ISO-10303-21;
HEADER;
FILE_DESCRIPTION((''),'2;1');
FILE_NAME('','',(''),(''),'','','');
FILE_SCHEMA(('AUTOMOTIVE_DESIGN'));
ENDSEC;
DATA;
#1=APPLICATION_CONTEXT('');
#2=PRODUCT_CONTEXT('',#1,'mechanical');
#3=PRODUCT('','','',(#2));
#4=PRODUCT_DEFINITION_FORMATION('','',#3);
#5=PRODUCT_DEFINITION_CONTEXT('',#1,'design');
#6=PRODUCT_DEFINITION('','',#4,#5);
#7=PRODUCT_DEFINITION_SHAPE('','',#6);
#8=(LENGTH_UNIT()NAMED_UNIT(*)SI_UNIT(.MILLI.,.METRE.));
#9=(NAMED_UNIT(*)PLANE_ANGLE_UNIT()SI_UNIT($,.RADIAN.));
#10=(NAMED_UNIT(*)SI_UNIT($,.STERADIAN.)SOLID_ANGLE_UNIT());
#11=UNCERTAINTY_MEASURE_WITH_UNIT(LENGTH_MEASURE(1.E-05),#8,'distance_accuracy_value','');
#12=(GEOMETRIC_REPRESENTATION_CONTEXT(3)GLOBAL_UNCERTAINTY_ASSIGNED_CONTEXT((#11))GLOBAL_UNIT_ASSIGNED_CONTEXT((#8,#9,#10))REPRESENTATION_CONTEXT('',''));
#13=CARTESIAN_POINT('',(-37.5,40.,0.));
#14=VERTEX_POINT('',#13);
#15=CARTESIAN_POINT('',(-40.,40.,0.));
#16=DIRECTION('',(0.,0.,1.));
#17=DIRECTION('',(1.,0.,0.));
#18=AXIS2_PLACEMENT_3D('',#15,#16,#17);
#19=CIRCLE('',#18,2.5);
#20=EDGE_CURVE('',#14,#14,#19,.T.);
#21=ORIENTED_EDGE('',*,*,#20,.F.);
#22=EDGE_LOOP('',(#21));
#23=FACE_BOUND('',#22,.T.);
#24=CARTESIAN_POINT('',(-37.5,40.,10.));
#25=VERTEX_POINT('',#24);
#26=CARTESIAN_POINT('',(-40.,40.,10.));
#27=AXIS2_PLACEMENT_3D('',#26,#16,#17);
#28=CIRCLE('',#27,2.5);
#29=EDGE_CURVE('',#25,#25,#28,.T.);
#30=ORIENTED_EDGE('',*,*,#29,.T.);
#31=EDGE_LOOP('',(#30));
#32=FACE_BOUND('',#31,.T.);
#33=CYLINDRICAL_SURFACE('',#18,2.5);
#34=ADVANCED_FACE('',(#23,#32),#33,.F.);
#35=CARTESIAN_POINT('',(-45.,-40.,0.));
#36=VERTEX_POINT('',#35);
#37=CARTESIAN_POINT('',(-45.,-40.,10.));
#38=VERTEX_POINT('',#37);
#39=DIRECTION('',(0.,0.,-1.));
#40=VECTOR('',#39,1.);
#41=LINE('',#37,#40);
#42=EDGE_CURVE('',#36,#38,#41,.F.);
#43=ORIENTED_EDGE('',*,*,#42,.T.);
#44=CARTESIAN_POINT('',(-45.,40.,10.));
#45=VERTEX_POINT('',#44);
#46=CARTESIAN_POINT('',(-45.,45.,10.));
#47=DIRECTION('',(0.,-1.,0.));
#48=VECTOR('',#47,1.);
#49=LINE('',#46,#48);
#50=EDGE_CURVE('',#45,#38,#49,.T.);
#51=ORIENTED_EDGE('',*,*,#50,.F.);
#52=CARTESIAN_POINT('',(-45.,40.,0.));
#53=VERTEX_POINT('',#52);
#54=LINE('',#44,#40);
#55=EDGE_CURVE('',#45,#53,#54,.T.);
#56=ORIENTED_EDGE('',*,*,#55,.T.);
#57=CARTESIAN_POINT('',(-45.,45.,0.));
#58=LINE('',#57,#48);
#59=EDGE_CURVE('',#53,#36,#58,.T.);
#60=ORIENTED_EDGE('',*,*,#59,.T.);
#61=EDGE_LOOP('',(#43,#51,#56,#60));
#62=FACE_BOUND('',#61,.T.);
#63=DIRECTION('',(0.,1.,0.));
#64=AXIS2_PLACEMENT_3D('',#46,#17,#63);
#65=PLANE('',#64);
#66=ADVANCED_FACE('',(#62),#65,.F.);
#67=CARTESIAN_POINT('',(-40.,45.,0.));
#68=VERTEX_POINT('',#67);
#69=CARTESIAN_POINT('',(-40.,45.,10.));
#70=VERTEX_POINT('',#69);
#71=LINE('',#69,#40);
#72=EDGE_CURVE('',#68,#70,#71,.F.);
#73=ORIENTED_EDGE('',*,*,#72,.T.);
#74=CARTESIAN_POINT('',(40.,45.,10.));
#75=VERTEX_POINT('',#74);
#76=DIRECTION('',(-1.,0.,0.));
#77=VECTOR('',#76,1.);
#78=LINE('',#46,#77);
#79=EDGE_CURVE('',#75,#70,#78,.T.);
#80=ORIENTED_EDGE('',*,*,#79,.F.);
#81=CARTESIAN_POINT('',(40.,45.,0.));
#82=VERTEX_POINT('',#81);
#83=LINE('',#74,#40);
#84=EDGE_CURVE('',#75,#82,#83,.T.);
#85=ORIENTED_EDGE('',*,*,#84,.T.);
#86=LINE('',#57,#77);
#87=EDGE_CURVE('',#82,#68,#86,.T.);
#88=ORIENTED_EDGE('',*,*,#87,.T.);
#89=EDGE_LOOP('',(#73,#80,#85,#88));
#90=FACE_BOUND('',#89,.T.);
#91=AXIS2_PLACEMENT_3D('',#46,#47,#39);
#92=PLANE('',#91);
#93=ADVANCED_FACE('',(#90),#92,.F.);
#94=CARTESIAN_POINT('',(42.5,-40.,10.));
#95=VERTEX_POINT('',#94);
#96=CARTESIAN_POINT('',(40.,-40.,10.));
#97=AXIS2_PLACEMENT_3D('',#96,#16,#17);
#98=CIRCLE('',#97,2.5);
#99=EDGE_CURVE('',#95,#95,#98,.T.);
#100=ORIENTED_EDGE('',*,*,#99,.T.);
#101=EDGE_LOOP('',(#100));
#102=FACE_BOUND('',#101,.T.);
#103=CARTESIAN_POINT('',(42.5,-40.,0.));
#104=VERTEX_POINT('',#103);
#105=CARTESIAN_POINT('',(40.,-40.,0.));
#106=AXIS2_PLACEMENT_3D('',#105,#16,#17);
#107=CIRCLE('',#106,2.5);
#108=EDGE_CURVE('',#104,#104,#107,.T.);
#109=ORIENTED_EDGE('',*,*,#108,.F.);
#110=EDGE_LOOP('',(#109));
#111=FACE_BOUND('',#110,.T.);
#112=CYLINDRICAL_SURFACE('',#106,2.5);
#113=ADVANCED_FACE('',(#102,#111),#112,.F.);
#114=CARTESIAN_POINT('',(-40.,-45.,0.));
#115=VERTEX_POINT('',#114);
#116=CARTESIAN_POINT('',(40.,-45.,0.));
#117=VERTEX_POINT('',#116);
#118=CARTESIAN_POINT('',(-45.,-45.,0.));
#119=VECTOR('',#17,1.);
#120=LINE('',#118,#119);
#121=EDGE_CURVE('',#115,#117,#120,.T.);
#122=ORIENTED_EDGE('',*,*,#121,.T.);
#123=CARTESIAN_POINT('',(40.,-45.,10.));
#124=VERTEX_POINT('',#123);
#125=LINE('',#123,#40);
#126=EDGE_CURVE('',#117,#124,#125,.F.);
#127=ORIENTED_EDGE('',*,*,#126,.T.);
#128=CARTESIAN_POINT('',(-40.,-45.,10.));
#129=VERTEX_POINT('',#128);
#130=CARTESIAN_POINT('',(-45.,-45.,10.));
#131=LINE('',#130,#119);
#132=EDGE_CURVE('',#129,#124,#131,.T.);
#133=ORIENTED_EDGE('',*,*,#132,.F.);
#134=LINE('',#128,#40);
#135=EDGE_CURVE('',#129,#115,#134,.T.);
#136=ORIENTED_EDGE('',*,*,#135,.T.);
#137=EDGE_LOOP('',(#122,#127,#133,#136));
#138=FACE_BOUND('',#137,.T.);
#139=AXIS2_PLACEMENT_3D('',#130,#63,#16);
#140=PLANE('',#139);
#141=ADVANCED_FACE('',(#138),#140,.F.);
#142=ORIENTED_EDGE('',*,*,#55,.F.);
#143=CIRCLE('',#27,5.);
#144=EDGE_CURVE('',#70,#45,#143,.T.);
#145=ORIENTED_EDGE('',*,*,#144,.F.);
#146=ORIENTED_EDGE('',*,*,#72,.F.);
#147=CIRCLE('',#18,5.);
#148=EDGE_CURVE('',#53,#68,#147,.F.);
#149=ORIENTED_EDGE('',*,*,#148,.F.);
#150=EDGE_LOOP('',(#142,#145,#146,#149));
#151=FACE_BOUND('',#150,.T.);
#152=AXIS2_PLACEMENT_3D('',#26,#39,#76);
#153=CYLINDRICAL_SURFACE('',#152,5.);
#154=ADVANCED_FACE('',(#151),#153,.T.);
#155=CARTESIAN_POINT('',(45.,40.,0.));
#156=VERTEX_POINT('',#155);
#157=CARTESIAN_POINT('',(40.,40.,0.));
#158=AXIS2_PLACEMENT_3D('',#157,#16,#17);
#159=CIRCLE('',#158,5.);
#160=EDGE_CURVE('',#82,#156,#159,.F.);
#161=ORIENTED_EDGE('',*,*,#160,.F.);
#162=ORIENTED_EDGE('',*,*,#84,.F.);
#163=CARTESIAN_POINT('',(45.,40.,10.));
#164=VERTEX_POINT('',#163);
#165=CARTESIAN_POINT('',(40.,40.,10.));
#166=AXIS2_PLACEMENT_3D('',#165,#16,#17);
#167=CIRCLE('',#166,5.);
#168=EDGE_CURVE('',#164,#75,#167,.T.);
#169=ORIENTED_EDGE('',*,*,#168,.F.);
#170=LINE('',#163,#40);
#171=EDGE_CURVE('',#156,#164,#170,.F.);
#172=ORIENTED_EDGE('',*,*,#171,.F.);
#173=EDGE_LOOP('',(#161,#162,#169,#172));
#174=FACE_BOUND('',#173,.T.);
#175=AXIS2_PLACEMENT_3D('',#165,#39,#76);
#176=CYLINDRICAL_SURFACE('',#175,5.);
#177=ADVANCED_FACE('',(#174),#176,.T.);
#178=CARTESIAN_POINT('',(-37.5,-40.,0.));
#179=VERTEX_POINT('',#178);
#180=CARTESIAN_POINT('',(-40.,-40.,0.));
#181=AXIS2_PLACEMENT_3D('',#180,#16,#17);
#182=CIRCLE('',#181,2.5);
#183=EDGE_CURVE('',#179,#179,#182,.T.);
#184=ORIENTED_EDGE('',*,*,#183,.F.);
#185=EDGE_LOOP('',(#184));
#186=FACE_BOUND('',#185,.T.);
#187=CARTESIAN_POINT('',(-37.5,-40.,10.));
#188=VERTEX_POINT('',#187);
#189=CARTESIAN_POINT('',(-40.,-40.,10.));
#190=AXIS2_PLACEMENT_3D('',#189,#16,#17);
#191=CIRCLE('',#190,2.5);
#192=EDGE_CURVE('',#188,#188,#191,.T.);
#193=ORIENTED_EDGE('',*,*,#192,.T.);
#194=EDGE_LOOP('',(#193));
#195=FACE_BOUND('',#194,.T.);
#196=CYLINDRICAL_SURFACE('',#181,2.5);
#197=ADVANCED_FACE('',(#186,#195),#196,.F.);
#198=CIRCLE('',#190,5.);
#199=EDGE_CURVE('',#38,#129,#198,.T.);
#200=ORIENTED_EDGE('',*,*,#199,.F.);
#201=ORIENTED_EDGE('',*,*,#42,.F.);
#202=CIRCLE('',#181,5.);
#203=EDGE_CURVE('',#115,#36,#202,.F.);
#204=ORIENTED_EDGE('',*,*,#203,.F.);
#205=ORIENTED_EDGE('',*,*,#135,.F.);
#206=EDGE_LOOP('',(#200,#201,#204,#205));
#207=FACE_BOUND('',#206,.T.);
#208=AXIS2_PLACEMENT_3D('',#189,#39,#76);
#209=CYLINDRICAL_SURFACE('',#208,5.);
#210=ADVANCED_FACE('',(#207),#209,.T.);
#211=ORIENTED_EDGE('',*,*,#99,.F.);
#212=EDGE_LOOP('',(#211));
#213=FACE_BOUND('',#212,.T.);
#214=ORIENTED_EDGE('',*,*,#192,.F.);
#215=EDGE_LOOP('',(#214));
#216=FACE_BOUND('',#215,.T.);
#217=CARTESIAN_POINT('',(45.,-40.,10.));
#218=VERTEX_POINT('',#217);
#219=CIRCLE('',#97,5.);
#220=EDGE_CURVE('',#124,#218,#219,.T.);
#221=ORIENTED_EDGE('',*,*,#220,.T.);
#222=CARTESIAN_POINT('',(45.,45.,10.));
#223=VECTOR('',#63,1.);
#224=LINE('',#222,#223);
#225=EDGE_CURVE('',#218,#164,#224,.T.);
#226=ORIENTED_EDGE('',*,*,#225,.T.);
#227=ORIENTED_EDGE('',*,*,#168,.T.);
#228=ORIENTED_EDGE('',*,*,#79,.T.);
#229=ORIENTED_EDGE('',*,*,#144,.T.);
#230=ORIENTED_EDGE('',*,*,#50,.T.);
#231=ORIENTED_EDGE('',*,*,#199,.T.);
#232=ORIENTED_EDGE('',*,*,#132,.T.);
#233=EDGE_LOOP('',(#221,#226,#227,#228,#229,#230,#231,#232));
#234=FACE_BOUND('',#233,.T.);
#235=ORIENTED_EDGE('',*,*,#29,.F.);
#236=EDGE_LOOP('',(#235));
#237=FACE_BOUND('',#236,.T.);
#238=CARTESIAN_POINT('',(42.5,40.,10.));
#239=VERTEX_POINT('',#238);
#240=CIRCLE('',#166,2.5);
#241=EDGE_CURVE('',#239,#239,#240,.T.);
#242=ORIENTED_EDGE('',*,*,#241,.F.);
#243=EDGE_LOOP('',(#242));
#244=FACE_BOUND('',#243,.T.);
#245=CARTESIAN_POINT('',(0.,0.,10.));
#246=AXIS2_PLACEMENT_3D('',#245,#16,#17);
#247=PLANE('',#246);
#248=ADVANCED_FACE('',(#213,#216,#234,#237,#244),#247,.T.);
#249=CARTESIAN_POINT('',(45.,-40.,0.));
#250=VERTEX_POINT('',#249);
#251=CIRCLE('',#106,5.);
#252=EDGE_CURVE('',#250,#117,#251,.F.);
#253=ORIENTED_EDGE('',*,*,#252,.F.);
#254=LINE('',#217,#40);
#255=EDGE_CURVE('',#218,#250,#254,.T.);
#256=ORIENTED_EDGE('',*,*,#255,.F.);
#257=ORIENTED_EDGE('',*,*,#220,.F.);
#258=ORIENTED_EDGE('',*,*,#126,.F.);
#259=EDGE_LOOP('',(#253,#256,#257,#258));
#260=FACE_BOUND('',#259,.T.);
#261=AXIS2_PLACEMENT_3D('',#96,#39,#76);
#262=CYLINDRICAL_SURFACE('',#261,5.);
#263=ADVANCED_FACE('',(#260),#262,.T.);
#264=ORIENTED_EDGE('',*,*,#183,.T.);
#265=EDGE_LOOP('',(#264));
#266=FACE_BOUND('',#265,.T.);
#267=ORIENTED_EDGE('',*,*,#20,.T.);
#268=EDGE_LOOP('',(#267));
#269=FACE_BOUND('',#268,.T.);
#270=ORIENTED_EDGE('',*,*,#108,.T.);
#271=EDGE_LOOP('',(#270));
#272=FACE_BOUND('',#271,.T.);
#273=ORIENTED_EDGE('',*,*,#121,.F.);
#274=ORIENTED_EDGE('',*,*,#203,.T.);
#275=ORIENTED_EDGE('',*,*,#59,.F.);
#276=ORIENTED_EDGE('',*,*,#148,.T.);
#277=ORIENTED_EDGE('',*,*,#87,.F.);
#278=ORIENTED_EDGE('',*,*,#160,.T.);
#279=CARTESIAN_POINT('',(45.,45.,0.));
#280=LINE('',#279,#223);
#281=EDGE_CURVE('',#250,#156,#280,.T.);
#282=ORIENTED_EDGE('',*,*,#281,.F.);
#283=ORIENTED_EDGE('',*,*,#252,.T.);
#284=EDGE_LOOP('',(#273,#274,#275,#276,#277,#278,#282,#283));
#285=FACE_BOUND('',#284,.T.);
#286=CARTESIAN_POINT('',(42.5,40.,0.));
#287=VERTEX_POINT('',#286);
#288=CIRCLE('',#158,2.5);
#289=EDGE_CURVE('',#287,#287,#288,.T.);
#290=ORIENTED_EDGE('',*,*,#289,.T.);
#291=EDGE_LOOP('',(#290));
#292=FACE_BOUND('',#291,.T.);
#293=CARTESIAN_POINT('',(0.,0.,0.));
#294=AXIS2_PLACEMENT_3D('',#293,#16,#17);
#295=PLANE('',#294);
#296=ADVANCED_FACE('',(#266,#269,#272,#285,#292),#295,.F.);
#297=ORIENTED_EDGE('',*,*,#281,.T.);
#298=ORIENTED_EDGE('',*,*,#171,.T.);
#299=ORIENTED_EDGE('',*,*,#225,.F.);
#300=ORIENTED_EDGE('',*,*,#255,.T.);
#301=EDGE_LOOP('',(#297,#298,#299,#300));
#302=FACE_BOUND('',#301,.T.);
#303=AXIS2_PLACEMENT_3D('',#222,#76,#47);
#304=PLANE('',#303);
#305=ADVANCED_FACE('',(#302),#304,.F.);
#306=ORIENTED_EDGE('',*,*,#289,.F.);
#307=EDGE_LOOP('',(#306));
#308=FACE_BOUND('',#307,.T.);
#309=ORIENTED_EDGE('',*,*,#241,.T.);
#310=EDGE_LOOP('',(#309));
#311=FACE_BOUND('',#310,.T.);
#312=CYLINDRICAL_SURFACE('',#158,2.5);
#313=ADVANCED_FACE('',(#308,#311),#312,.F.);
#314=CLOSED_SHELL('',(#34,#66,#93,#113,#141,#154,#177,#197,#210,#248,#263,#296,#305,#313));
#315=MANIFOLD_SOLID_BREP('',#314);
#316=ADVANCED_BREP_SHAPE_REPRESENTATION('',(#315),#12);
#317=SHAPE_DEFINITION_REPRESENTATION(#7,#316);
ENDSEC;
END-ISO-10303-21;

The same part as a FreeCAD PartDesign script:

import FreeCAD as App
import Part
import Sketcher

V = App.Vector


def edges_at(feature, points):
    """Names of the edges that pass closest to the given points."""
    edges = feature.Shape.Edges
    near = lambda p: min(range(len(edges)), key=lambda i: edges[i].distToShape(Part.Vertex(*p))[0])
    return sorted({f"Edge{near(p) + 1}" for p in points})


def add_polygon(sketch, points):
    """Adds a closed chain of lines whose ends are joined by coincident constraints."""
    first, n = sketch.GeometryCount, len(points)
    for a, b in zip(points, points[1:] + points[:1]):
        sketch.addGeometry(Part.LineSegment(App.Vector(*a, 0), App.Vector(*b, 0)), False)
    for i in range(n):
        sketch.addConstraint(Sketcher.Constraint("Coincident", first + i, 2, first + (i + 1) % n, 1))

doc = App.newDocument("Part")
params = doc.addObject("Spreadsheet::Sheet", "Params")
for row, (alias, value) in enumerate([
    ("sketch1_width", "90 mm"),
    ("pad1_length", "10 mm"),
    ("fillet_radius", "5 mm"),
    ("sketch2_diameter", "5 mm"),
    ("pocket1_length", "10 mm"),
], start=1):
    params.set(f"A{row}", alias)
    params.set(f"B{row}", "=" + value)
    params.setAlias(f"B{row}", alias)

body = doc.addObject("PartDesign::Body", "Body")

sketch1 = body.newObject("Sketcher::SketchObject", "Sketch")
sketch1.AttachmentSupport = (doc.getObject("XY_Plane"), [""])
sketch1.MapMode = "FlatFace"
add_polygon(sketch1, [(-45, 45), (-45, -45), (45, -45), (45, 45)])
sketch1.addConstraint([
    Sketcher.Constraint("Vertical", 0),
    Sketcher.Constraint("Horizontal", 1),
    Sketcher.Constraint("Vertical", 2),
    Sketcher.Constraint("Horizontal", 3),
    Sketcher.Constraint("Symmetric", 0, 2, 2, 2, -1, 1),
    Sketcher.Constraint("Equal", 3, 0),
    Sketcher.Constraint("DistanceX", 1, 1, 1, 2, 90.0),
])
sketch1.setExpression("Constraints[10]", "Params.sketch1_width")
pad1 = body.newObject("PartDesign::Pad", "Pad")
pad1.Profile = sketch1
pad1.setExpression("Length", "Params.pad1_length")
doc.recompute()

fillet = body.newObject("PartDesign::Fillet", "Fillet")
fillet.Base = (pad1, edges_at(pad1, [
    (45, -45, 5),
    (-45, -45, 5),
    (-45, 45, 5),
    (45, 45, 5),
]))
fillet.setExpression("Radius", "Params.fillet_radius")

sketch2 = body.newObject("Sketcher::SketchObject", "Sketch001")
sketch2.AttachmentSupport = (doc.getObject("XY_Plane"), [""])
sketch2.MapMode = "FlatFace"
sketch2.AttachmentOffset = App.Placement(V(0, 0, 10), App.Rotation())
sketch2.addGeometry([
    Part.Circle(V(-40, 40, 0), V(0, 0, 1), 2.5),
    Part.Circle(V(40, 40, 0), V(0, 0, 1), 2.5),
    Part.Circle(V(40, -40, 0), V(0, 0, 1), 2.5),
    Part.Circle(V(-40, -40, 0), V(0, 0, 1), 2.5),
], False)
sketch2.addConstraint([
    Sketcher.Constraint("Equal", 0, 1),
    Sketcher.Constraint("Equal", 1, 2),
    Sketcher.Constraint("Equal", 2, 3),
    Sketcher.Constraint("Symmetric", 0, 3, 2, 3, -1, 1),
    Sketcher.Constraint("Symmetric", 1, 3, 3, 3, -1, 1),
    Sketcher.Constraint("Symmetric", 0, 3, 1, 3, -2),
    Sketcher.Constraint("Diameter", 0, 5.0),
    Sketcher.Constraint("DistanceX", 0, 3, -1, 1, 40.0),
    Sketcher.Constraint("DistanceY", -1, 1, 0, 3, 40.0),
])
sketch2.setExpression("Constraints[6]", "Params.sketch2_diameter")
pocket1 = body.newObject("PartDesign::Pocket", "Pocket")
pocket1.Profile = sketch2
pocket1.setExpression("Length", "Params.pocket1_length")

doc.recompute()
